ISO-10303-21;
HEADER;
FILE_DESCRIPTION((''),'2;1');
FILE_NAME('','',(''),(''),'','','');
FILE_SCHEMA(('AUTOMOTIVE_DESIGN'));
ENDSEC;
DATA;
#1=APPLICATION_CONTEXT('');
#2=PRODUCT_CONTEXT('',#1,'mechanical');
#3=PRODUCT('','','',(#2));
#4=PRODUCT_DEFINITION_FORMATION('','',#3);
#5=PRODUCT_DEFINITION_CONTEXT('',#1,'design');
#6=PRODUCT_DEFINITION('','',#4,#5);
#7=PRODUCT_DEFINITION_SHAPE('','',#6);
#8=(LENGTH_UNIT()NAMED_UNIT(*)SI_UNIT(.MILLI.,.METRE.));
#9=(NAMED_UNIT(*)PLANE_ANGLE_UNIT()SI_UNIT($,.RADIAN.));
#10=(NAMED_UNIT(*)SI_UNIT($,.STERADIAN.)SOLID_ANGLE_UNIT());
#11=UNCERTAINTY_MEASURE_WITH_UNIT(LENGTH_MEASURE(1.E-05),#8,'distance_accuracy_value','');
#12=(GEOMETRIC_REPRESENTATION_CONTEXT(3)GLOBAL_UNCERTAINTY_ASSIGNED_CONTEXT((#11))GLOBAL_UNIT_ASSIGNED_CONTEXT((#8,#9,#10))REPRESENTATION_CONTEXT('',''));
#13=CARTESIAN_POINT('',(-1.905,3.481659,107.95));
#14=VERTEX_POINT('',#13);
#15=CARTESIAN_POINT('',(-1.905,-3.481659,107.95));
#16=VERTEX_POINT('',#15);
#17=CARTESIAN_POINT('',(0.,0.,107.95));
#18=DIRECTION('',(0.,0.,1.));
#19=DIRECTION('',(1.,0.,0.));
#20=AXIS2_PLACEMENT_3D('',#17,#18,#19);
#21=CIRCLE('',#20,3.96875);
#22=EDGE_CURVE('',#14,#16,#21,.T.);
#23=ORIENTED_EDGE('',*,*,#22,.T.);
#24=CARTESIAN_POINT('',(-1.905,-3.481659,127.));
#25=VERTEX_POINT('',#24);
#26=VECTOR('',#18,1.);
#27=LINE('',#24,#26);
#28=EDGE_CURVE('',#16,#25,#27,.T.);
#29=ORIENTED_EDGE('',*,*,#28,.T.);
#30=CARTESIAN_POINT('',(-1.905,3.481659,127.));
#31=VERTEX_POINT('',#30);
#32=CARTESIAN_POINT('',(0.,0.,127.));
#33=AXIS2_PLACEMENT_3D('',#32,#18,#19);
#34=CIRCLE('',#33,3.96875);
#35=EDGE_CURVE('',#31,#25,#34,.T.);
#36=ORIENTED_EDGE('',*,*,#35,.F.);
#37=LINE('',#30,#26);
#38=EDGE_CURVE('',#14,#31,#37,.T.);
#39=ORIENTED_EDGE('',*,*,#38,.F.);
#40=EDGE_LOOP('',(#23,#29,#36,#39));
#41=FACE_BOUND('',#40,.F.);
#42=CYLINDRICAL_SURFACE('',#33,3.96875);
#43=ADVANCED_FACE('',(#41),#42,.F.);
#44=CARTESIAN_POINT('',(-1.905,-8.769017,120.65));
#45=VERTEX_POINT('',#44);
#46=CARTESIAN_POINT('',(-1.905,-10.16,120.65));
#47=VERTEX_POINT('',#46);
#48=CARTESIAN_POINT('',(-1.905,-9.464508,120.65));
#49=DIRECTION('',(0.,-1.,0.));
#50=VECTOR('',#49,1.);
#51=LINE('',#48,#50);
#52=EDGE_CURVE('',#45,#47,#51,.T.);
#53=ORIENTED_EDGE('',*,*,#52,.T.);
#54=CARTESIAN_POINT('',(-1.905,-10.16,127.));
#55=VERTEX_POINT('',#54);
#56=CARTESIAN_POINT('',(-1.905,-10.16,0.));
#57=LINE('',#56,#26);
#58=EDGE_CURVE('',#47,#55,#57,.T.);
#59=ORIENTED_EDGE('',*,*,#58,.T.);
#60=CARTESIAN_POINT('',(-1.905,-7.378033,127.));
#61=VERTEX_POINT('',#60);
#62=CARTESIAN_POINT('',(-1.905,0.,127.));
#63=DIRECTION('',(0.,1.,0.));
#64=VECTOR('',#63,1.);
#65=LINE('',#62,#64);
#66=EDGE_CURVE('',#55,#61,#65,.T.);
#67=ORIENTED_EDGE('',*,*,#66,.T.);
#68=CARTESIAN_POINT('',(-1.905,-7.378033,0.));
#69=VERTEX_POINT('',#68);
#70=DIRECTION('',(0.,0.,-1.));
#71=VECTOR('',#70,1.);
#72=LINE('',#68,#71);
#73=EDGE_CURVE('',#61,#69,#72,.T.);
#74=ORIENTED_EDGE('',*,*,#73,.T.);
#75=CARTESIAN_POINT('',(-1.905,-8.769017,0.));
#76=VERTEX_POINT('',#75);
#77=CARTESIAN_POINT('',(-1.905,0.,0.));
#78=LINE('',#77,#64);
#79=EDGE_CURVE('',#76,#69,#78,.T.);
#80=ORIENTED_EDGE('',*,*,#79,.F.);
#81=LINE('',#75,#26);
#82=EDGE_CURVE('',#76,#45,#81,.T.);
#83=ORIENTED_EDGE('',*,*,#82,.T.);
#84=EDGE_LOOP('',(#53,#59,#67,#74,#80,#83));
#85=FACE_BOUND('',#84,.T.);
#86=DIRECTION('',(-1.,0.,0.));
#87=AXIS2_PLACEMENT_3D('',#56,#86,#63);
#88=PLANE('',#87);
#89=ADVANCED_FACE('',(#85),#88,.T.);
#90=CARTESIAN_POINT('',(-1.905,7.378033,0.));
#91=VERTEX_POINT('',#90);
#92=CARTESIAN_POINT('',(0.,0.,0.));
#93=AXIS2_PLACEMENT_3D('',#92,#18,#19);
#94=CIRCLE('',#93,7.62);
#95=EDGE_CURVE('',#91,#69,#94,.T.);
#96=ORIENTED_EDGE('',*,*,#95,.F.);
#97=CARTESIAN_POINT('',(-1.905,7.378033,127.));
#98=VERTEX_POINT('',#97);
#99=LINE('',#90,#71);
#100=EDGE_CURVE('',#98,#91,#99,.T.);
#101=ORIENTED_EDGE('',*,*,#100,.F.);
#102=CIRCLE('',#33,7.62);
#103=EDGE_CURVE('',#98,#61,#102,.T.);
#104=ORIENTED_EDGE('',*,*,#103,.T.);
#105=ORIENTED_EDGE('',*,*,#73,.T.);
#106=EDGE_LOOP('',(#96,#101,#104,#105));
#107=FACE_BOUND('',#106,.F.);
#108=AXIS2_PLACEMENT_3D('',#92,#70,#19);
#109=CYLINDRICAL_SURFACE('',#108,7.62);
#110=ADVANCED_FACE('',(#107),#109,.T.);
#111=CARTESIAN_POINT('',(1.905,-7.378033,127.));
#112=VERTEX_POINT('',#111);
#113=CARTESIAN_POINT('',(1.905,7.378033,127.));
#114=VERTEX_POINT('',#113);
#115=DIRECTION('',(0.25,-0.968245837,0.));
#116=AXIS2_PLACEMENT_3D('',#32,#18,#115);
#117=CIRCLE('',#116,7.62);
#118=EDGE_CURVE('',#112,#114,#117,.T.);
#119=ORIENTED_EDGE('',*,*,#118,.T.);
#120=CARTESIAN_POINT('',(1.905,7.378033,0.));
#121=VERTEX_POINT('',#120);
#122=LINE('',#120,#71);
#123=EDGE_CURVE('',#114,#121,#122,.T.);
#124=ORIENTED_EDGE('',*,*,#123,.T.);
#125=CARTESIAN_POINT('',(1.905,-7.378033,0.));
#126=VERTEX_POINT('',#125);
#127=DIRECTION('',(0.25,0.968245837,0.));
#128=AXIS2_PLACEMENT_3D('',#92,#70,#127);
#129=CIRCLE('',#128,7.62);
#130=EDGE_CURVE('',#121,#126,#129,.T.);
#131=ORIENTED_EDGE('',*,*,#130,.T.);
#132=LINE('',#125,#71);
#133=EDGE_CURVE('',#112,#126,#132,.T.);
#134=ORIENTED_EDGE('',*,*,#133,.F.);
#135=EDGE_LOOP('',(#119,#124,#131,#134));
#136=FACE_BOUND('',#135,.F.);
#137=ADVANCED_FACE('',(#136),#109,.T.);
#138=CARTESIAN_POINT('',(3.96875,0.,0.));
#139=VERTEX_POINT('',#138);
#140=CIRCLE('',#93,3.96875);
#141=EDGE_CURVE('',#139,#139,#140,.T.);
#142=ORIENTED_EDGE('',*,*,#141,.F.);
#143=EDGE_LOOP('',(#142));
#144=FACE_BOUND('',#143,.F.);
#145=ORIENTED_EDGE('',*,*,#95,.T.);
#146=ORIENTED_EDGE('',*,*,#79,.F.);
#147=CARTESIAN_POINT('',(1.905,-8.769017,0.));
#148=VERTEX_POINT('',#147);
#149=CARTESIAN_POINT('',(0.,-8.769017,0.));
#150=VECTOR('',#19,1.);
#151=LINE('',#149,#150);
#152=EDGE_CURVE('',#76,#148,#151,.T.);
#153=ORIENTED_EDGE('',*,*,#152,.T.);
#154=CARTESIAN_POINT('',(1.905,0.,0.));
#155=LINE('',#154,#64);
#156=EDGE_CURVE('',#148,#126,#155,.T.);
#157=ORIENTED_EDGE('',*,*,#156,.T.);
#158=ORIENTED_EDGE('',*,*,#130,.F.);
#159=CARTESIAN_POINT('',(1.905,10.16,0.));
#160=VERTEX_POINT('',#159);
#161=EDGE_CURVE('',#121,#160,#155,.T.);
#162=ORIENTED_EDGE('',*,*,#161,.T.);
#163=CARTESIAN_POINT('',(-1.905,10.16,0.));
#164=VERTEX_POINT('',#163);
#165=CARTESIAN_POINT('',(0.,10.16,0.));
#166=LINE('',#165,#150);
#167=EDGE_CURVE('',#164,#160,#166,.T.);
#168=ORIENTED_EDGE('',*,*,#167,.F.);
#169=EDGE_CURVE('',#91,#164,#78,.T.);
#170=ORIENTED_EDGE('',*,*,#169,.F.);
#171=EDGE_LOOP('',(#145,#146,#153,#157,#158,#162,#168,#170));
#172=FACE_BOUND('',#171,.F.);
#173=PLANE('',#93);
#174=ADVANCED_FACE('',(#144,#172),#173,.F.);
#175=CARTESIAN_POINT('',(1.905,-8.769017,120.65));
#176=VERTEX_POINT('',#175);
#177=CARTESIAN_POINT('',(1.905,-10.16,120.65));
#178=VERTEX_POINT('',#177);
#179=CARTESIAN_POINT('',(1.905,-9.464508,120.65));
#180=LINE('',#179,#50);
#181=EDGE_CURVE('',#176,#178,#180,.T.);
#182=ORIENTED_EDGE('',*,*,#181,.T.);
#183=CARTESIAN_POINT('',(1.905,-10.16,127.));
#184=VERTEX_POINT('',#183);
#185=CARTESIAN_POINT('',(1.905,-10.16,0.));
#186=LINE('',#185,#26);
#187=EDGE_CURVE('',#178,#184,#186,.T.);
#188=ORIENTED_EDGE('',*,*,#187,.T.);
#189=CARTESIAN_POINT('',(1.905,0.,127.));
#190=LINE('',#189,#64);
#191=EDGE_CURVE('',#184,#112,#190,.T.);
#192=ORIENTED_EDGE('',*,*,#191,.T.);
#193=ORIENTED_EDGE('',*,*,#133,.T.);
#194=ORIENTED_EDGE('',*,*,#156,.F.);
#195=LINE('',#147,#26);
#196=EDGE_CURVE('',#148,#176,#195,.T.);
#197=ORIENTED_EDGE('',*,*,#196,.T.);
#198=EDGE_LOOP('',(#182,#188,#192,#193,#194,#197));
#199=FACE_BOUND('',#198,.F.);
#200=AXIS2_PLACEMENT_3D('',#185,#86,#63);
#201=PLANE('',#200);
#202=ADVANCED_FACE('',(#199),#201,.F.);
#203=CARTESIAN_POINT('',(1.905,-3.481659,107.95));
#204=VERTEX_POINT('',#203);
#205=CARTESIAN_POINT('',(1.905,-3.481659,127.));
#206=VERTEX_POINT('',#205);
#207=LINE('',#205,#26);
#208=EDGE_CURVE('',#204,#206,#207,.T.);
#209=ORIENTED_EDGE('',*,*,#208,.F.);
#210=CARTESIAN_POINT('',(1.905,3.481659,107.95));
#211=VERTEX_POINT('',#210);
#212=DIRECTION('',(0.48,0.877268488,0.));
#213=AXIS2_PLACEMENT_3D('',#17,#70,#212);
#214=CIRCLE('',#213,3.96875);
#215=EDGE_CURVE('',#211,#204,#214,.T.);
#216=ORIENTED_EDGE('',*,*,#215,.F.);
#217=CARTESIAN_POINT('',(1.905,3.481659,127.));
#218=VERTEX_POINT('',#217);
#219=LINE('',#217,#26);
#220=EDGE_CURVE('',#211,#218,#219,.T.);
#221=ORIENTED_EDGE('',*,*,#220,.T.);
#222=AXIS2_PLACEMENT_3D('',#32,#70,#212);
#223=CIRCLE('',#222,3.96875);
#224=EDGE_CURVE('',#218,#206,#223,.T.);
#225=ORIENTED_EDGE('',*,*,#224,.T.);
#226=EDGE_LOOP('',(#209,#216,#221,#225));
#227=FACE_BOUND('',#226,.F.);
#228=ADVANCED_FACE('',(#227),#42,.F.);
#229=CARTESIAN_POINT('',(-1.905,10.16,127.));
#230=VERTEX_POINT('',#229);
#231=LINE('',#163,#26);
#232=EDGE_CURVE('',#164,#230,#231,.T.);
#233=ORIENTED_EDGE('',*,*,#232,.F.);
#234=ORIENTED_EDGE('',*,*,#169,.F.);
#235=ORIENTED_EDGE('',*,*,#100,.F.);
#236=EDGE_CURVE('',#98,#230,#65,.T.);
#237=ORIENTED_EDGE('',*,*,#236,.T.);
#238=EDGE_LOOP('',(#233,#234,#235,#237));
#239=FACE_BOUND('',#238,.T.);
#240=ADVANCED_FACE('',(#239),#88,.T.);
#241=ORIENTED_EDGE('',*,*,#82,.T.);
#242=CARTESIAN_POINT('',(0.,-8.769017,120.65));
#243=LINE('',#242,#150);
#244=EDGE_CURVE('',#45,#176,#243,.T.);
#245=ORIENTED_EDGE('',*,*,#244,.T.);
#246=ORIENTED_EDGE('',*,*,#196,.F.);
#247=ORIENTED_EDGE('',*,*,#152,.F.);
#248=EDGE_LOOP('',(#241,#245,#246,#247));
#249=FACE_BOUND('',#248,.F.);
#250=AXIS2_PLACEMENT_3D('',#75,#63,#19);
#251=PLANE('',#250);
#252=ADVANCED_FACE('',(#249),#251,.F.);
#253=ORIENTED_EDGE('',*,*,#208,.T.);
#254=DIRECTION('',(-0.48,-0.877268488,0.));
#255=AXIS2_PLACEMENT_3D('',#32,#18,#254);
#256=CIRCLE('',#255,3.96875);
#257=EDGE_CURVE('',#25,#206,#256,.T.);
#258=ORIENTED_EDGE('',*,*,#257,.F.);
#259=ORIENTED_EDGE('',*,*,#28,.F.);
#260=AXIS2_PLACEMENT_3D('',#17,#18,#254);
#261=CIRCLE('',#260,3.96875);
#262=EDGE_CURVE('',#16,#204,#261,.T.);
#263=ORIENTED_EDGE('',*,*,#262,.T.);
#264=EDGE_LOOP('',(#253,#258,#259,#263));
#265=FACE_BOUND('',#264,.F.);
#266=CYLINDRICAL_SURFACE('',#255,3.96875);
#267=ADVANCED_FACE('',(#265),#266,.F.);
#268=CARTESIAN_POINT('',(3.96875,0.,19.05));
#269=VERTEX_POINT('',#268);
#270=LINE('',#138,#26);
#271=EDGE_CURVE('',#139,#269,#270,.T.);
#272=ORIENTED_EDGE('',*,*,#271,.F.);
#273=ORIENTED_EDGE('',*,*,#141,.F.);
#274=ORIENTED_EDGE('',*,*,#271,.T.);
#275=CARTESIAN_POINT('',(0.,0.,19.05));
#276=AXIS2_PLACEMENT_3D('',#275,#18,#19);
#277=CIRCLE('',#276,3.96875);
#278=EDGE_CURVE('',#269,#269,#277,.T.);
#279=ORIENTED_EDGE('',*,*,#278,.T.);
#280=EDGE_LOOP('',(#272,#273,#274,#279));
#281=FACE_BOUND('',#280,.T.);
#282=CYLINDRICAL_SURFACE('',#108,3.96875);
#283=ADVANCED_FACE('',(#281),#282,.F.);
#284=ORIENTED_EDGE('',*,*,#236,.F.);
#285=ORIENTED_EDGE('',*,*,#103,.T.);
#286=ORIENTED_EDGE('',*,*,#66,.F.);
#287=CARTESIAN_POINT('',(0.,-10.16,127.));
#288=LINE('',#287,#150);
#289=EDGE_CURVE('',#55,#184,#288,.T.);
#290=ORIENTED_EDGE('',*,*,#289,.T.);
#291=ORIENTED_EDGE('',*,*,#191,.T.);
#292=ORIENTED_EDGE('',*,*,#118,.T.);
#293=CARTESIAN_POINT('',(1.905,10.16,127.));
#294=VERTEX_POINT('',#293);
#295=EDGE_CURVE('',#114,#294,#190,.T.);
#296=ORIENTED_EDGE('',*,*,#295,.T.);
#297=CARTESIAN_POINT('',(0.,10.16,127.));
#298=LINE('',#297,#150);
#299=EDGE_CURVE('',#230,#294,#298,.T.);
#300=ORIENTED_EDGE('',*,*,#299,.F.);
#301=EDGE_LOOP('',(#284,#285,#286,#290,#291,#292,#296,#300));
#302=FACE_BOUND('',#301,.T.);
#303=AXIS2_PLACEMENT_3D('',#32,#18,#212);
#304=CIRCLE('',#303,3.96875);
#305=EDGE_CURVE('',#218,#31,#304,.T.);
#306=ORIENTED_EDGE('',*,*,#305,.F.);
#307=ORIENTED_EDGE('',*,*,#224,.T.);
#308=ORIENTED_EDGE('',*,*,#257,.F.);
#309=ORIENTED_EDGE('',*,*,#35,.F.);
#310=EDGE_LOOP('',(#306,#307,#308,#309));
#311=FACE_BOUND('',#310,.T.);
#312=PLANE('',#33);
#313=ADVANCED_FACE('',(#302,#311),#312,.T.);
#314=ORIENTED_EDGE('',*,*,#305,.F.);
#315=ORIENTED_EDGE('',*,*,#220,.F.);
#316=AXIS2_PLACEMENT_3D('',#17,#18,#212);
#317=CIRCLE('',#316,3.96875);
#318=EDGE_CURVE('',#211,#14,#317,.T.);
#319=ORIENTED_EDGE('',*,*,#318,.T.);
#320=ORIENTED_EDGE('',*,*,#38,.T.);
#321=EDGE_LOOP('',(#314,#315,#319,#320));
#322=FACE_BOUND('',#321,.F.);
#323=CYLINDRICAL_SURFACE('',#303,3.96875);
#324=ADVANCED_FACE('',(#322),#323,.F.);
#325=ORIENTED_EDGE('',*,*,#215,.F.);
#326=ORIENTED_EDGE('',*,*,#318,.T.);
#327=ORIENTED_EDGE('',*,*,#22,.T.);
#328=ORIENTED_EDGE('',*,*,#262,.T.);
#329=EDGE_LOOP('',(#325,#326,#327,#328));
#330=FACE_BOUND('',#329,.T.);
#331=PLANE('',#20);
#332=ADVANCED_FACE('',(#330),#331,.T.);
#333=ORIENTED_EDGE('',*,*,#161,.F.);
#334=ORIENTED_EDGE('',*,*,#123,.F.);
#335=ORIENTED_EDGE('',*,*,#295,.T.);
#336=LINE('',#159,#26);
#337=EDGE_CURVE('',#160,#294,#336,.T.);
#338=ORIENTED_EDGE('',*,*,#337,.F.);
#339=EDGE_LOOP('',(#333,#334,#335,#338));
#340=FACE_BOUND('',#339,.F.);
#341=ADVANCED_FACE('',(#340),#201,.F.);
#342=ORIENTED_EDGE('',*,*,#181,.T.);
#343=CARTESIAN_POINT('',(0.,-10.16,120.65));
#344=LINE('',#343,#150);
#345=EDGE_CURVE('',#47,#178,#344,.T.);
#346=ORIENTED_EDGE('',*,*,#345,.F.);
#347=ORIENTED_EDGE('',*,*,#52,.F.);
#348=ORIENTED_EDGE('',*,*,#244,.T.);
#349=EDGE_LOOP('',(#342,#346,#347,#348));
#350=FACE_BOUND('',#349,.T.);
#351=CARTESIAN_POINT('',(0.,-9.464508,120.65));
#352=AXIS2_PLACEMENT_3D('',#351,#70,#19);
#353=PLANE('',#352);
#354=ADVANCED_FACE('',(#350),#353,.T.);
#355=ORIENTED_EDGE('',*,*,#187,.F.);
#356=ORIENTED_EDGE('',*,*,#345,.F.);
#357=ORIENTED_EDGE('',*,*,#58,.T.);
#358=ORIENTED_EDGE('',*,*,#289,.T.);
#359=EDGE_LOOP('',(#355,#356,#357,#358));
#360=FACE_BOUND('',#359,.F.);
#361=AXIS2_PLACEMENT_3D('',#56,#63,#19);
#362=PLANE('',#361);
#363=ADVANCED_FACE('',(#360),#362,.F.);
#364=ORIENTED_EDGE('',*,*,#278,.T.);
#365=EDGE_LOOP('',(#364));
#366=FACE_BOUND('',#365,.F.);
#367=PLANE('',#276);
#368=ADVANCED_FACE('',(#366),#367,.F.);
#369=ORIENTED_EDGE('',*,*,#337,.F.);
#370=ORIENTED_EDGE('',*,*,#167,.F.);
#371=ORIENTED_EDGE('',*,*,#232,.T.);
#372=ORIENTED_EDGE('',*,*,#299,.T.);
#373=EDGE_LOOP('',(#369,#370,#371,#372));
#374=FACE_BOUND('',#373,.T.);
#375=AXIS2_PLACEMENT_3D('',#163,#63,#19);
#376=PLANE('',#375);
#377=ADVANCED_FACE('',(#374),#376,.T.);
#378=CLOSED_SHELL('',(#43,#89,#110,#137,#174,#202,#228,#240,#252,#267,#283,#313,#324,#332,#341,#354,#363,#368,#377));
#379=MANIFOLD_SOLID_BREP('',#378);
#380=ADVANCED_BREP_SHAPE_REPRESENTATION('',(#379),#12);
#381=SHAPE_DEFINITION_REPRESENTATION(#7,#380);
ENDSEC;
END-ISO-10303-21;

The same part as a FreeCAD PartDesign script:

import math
import FreeCAD as App
import Part
import Sketcher

V = App.Vector
Q = App.Units.Quantity


def add_polygon(sketch, points):
    """Adds a closed chain of lines whose ends are joined by coincident constraints."""
    first, n = sketch.GeometryCount, len(points)
    for a, b in zip(points, points[1:] + points[:1]):
        sketch.addGeometry(Part.LineSegment(App.Vector(*a, 0), App.Vector(*b, 0)), False)
    for i in range(n):
        sketch.addConstraint(Sketcher.Constraint("Coincident", first + i, 2, first + (i + 1) % n, 1))

doc = App.newDocument("Part")
body = doc.addObject("PartDesign::Body", "Body")

sketch1 = doc.addObject("Sketcher::SketchObject", "Sketch")
body.addObject(sketch1)
sketch1.AttachmentSupport = (doc.XY_Plane, [""])
sketch1.MapMode = "FlatFace"
sketch1.addGeometry(Part.Circle(V(0, 0, 0), V(0, 0, 1), 8), False)
sketch1.addConstraint(Sketcher.Constraint("Coincident", 0, 3, -1, 1))
sketch1.addConstraint(Sketcher.Constraint("Diameter", 0, Q("0.6 in")))
pad1 = doc.addObject("PartDesign::Pad", "Pad")
body.addObject(pad1)
pad1.Profile = sketch1
pad1.Length = Q("5 in")

sketch2 = doc.addObject("Sketcher::SketchObject", "Sketch001")
body.addObject(sketch2)
sketch2.AttachmentSupport = (doc.XY_Plane, [""])
sketch2.MapMode = "FlatFace"
sketch2.AttachmentOffset = App.Placement(V(0, 0, 5 * 25.4), App.Rotation())
sketch2.addGeometry(Part.Circle(V(0, 0, 0), V(0, 0, 1), 4), False)
sketch2.addConstraint(Sketcher.Constraint("Coincident", 0, 3, -1, 1))
sketch2.addConstraint(Sketcher.Constraint("Diameter", 0, Q("0.3125 in")))
pocket1 = doc.addObject("PartDesign::Pocket", "Pocket")
body.addObject(pocket1)
pocket1.Profile = sketch2
pocket1.Length = Q("0.75 in")

sketch3 = doc.addObject("Sketcher::SketchObject", "Sketch002")
body.addObject(sketch3)
sketch3.AttachmentSupport = (doc.XY_Plane, [""])
sketch3.MapMode = "FlatFace"
add_polygon(sketch3, [(-1.9, 10.2), (-1.9, -10.2), (1.9, -10.2), (1.9, 10.2)])
sketch3.addConstraint(Sketcher.Constraint("Vertical", 0))
sketch3.addConstraint(Sketcher.Constraint("Horizontal", 1))
sketch3.addConstraint(Sketcher.Constraint("Vertical", 2))
sketch3.addConstraint(Sketcher.Constraint("Horizontal", 3))
sketch3.addConstraint(Sketcher.Constraint("Symmetric", 0, 2, 2, 2, -1, 1))
sketch3.addConstraint(Sketcher.Constraint("DistanceY", 0, 2, 0, 1, Q("0.8 in")))
sketch3.addConstraint(Sketcher.Constraint("DistanceX", 1, 1, 1, 2, Q("0.15 in")))
pad2 = doc.addObject("PartDesign::Pad", "Pad001")
body.addObject(pad2)
pad2.Profile = sketch3
pad2.Length = Q("5 in")

sketch4 = doc.addObject("Sketcher::SketchObject", "Sketch003")
body.addObject(sketch4)
sketch4.AttachmentSupport = (doc.XY_Plane, [""])
sketch4.MapMode = "FlatFace"
sketch4.AttachmentOffset = App.Placement(V(0, 0, 5 * 25.4), App.Rotation())
sketch4.addGeometry(Part.LineSegment(V(1.9, -3.5, 0), V(1.9, 3.5, 0)), False)
sketch4.addGeometry(Part.ArcOfCircle(Part.Circle(V(0, 0, 0), V(0, 0, 1), 4), math.radians(61), math.radians(119)), False)
sketch4.addGeometry(Part.LineSegment(V(-1.9, 3.5, 0), V(-1.9, -3.5, 0)), False)
sketch4.addGeometry(Part.ArcOfCircle(Part.Circle(V(0, 0, 0), V(0, 0, 1), 4), math.radians(-119), math.radians(-61)), False)
sketch4.addConstraint(Sketcher.Constraint("Coincident", 0, 2, 1, 1))
sketch4.addConstraint(Sketcher.Constraint("Coincident", 1, 2, 2, 1))
sketch4.addConstraint(Sketcher.Constraint("Coincident", 2, 2, 3, 1))
sketch4.addConstraint(Sketcher.Constraint("Coincident", 3, 2, 0, 1))
sketch4.addConstraint(Sketcher.Constraint("Vertical", 0))
sketch4.addConstraint(Sketcher.Constraint("Vertical", 2))
sketch4.addConstraint(Sketcher.Constraint("Coincident", 1, 3, -1, 1))
sketch4.addConstraint(Sketcher.Constraint("Coincident", 3, 3, -1, 1))
sketch4.addConstraint(Sketcher.Constraint("Equal", 1, 3))
sketch4.addConstraint(Sketcher.Constraint("Horizontal", 0, 2, 1, 2))
sketch4.addConstraint(Sketcher.Constraint("Radius", 1, Q("0.15625 in")))
sketch4.addConstraint(Sketcher.Constraint("DistanceX", 1, 2, 0, 2, Q("0.15 in")))
pocket2 = doc.addObject("PartDesign::Pocket", "Pocket001")
body.addObject(pocket2)
pocket2.Profile = sketch4
pocket2.Length = Q("0.75 in")

sketch5 = doc.addObject("Sketcher::SketchObject", "Sketch004")
body.addObject(sketch5)
sketch5.AttachmentSupport = (doc.XY_Plane, [""])
sketch5.MapMode = "FlatFace"
sketch5.addGeometry(Part.Circle(V(0, 0, 0), V(0, 0, 1), 4), False)
sketch5.addConstraint(Sketcher.Constraint("Coincident", 0, 3, -1, 1))
sketch5.addConstraint(Sketcher.Constraint("Diameter", 0, Q("0.3125 in")))
pocket3 = doc.addObject("PartDesign::Pocket", "Pocket002")
body.addObject(pocket3)
pocket3.Profile = sketch5
pocket3.Length = Q("0.75 in")
pocket3.Reversed = True

sketch6 = doc.addObject("Sketcher::SketchObject", "Sketch005")
body.addObject(sketch6)
sketch6.AttachmentSupport = (doc.XY_Plane, [""])
sketch6.MapMode = "FlatFace"
add_polygon(sketch6, [(-1.9, -10.2), (-1.9, -8.8), (1.9, -8.8), (1.9, -10.2)])
sketch6.addConstraint(Sketcher.Constraint("Vertical", 0))
sketch6.addConstraint(Sketcher.Constraint("Horizontal", 1))
sketch6.addConstraint(Sketcher.Constraint("Vertical", 2))
sketch6.addConstraint(Sketcher.Constraint("Horizontal", 3))
sketch6.addConstraint(Sketcher.Constraint("DistanceX", 1, 1, 1, 2, Q("0.15 in")))
sketch6.addConstraint(Sketcher.Constraint("DistanceY", 2, 2, -1, 1, Q("0.4 in")))
sketch6.addConstraint(Sketcher.Constraint("DistanceX", 0, 2, -1, 1, Q("0.075 in")))
sketch6.addConstraint(Sketcher.Constraint("DistanceY", 0, 1, 0, 2, 1.390983))
pocket4 = doc.addObject("PartDesign::Pocket", "Pocket003")
body.addObject(pocket4)
pocket4.Profile = sketch6
pocket4.Length = Q("4.75 in")
pocket4.Reversed = True

doc.recompute()
